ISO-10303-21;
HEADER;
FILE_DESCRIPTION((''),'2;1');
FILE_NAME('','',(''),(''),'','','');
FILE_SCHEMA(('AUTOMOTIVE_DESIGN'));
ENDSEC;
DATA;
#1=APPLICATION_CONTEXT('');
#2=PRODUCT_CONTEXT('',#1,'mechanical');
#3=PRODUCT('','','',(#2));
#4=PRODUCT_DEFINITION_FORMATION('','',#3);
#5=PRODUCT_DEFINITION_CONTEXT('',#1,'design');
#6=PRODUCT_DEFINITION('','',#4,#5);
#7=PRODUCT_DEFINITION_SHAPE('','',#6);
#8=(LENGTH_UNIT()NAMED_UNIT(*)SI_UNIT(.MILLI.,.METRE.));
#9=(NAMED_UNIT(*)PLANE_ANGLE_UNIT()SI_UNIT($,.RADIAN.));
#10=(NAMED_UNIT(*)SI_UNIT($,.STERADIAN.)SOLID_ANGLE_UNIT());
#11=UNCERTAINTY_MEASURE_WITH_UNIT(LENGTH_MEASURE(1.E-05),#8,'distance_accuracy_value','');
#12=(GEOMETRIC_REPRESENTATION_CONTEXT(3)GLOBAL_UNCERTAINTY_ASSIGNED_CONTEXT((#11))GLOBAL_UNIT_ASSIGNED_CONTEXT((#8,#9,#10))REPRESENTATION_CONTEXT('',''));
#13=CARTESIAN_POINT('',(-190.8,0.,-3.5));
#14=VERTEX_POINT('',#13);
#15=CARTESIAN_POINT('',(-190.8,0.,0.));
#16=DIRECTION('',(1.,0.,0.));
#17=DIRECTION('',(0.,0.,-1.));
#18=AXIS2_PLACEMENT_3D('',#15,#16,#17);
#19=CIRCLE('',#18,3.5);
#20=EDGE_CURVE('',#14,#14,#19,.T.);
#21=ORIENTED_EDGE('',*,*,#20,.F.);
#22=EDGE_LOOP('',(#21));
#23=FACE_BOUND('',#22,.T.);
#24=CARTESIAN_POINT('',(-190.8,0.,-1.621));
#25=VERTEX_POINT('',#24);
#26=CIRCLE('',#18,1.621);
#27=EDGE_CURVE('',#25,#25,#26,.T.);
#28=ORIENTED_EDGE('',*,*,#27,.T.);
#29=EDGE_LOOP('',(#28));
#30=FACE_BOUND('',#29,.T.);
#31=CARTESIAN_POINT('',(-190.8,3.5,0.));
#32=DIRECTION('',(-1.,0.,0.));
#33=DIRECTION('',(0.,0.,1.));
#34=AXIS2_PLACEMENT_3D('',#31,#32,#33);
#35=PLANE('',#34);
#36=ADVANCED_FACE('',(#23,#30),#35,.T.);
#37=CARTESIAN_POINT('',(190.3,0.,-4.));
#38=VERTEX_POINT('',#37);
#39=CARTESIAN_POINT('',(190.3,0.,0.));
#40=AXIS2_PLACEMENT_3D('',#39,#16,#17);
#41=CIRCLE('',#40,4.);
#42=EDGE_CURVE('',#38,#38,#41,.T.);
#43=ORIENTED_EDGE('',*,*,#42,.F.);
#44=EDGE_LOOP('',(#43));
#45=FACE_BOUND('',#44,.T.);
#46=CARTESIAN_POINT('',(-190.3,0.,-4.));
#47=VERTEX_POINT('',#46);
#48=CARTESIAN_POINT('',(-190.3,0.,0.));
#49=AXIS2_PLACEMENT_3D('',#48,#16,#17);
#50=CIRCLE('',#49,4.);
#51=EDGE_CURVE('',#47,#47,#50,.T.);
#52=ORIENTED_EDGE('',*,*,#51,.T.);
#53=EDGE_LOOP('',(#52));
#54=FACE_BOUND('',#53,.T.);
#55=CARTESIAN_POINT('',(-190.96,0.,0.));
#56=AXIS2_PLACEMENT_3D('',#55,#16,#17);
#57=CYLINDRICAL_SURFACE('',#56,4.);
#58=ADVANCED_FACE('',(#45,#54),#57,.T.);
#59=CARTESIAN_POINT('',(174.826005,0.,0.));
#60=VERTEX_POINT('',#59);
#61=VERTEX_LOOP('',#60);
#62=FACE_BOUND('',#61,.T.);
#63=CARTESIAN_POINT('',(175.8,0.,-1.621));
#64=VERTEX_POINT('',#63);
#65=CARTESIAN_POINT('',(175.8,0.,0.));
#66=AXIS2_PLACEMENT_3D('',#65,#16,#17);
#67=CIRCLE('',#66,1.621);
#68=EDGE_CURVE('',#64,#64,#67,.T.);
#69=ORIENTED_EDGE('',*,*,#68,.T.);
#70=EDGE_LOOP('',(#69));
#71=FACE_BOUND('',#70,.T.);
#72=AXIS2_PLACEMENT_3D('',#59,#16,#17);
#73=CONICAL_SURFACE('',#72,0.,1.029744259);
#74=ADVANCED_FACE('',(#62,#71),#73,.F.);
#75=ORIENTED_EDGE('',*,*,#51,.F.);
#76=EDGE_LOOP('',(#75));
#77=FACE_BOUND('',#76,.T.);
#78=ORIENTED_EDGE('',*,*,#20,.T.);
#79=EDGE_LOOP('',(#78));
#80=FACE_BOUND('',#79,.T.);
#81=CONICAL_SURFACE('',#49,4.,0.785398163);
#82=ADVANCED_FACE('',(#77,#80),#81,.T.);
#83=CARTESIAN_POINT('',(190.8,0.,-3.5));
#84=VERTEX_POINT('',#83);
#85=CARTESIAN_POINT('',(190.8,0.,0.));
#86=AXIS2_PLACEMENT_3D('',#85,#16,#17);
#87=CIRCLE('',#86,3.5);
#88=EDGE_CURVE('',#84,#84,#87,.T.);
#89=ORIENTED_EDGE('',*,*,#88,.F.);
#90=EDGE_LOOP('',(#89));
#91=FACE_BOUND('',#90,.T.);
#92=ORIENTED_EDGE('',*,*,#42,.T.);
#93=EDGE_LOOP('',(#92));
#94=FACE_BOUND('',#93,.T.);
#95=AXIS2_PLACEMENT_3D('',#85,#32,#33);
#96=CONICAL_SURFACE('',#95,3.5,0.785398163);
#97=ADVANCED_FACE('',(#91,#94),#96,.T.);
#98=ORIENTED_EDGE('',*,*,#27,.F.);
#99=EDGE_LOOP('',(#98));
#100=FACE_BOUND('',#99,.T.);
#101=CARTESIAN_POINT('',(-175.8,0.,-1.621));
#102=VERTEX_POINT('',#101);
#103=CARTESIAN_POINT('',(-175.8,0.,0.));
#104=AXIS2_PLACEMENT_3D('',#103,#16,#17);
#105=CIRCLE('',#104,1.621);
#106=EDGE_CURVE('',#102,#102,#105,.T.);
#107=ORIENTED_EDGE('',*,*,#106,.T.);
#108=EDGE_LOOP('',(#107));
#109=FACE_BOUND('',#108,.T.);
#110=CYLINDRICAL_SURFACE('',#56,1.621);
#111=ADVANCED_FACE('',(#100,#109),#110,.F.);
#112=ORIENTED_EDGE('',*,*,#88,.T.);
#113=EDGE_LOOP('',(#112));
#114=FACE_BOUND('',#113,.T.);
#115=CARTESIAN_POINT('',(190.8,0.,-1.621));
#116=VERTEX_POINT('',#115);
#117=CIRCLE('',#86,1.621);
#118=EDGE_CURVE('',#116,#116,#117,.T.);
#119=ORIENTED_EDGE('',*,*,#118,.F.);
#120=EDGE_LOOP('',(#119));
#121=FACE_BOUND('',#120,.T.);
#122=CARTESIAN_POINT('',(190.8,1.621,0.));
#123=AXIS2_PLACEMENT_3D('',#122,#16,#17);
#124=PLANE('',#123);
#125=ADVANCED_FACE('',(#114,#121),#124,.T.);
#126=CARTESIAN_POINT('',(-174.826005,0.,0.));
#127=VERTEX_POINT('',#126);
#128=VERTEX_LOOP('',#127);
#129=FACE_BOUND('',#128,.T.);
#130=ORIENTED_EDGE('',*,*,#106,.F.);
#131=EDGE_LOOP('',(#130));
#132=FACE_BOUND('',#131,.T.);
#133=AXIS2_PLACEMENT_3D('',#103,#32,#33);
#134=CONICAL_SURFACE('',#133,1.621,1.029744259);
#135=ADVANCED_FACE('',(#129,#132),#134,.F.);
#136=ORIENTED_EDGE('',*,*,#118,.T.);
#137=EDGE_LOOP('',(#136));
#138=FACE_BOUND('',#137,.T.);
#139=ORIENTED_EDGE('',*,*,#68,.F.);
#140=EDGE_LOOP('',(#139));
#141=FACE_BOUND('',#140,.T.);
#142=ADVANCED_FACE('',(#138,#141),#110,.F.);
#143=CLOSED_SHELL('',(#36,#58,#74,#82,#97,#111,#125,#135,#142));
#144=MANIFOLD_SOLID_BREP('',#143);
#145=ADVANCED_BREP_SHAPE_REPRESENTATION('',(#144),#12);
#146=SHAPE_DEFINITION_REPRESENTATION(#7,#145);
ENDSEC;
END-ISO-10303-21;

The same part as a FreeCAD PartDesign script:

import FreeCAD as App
import Part
import Sketcher
from FreeCAD import Vector
Q = App.Units.Quantity


def add_polygon(sketch, points):
    """Adds a closed chain of lines whose ends are joined by coincident constraints."""
    first, n = sketch.GeometryCount, len(points)
    for a, b in zip(points, points[1:] + points[:1]):
        sketch.addGeometry(Part.LineSegment(App.Vector(*a, 0), App.Vector(*b, 0)), False)
    for i in range(n):
        sketch.addConstraint(Sketcher.Constraint("Coincident", first + i, 2, first + (i + 1) % n, 1))

doc = App.newDocument("Part")
params = doc.addObject("Spreadsheet::Sheet", "Params")
for row, (alias, value) in enumerate([
    ("sketch1_width", "15 mm"),
    ("sketch1_width2", "380.6 mm"),
    ("revolution_angle", "360 deg"),
], start=1):
    params.set(f"A{row}", alias)
    params.set(f"B{row}", "=" + value)
    params.setAlias(f"B{row}", alias)

body = doc.addObject("PartDesign::Body", "Body")

sketch1 = body.newObject("Sketcher::SketchObject", "Sketch")
sketch1.AttachmentSupport = (doc.getObject("XY_Plane"), [""])
sketch1.MapMode = "FlatFace"
add_polygon(sketch1, [(-175.8, 1.621), (-174.826005, 0), (174.826005, 0), (175.8, 1.621), (190.8, 1.621), (190.8, 3.5), (190.3, 4), (-190.3, 4), (-190.8, 3.5), (-190.8, 1.621)])
sketch1.addConstraint([
    Sketcher.Constraint("Horizontal", 1),
    Sketcher.Constraint("Horizontal", 3),
    Sketcher.Constraint("Vertical", 4),
    Sketcher.Constraint("Horizontal", 6),
    Sketcher.Constraint("Vertical", 8),
    Sketcher.Constraint("Horizontal", 9),
    Sketcher.Constraint("Symmetric", 0, 2, 1, 2, -1, 1),
    Sketcher.Constraint("Symmetric", 4, 2, 7, 2, -2),
    Sketcher.Constraint("Symmetric", 2, 2, 9, 2, -2),
    Sketcher.Constraint("Perpendicular", 5, 7),
    Sketcher.Constraint("Equal", 5, 7),
    Sketcher.Constraint("DistanceX", 3, 1, 3, 2, 15.0),
    Sketcher.Constraint("Angle", 0, Q("-59 deg")),
    Sketcher.Constraint("DistanceX", 6, 2, 6, 1, 380.6),
    Sketcher.Constraint("DistanceY", -1, 1, 5, 2, 4.0),
    Sketcher.Constraint("DistanceX", -1, 1, 2, 2, 175.8),
    Sketcher.Constraint("DistanceY", 4, 1, 4, 2, 1.879),
])
sketch1.setExpression("Constraints[21]", "Params.sketch1_width")
sketch1.setExpression("Constraints[23]", "Params.sketch1_width2")
revolution = body.newObject("PartDesign::Revolution", "Revolution")
revolution.Profile = sketch1
revolution.ReferenceAxis = (sketch1, ["H_Axis"])
revolution.setExpression("Angle", "Params.revolution_angle")

doc.recompute()
